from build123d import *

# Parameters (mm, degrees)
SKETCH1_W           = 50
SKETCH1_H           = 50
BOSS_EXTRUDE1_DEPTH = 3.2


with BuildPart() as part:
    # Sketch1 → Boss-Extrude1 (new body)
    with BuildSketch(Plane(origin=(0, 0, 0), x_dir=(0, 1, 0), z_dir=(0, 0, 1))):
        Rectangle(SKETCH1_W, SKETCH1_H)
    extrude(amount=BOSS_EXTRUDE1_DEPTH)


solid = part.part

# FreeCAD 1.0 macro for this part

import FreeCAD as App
import Part
import Sketcher

V = App.Vector


def add_polygon(sketch, points):
    """Adds a closed chain of lines whose ends are joined by coincident constraints."""
    first, n = sketch.GeometryCount, len(points)
    for a, b in zip(points, points[1:] + points[:1]):
        sketch.addGeometry(Part.LineSegment(App.Vector(*a, 0), App.Vector(*b, 0)), False)
    for i in range(n):
        sketch.addConstraint(Sketcher.Constraint("Coincident", first + i, 2, first + (i + 1) % n, 1))

doc = App.newDocument("Part")
body = doc.addObject("PartDesign::Body", "Body")

sketch1 = doc.addObject("Sketcher::SketchObject", "Sketch")
body.addObject(sketch1)
sketch1.AttachmentSupport = (doc.XY_Plane, [""])
sketch1.MapMode = "FlatFace"
add_polygon(sketch1, [(-25, -25), (25, -25), (25, 25), (-25, 25)])
sketch1.addConstraint(Sketcher.Constraint("Horizontal", 0))
sketch1.addConstraint(Sketcher.Constraint("Vertical", 1))
sketch1.addConstraint(Sketcher.Constraint("Horizontal", 2))
sketch1.addConstraint(Sketcher.Constraint("Vertical", 3))
sketch1.addConstraint(Sketcher.Constraint("Symmetric", 0, 2, 2, 2, -1, 1))
sketch1.addConstraint(Sketcher.Constraint("Equal", 2, 1))
sketch1.addConstraint(Sketcher.Constraint("DistanceX", 0, 1, 0, 2, 50.0))
pad1 = doc.addObject("PartDesign::Pad", "Pad")
body.addObject(pad1)
pad1.Profile = sketch1
pad1.Length = 3.2

doc.recompute()
